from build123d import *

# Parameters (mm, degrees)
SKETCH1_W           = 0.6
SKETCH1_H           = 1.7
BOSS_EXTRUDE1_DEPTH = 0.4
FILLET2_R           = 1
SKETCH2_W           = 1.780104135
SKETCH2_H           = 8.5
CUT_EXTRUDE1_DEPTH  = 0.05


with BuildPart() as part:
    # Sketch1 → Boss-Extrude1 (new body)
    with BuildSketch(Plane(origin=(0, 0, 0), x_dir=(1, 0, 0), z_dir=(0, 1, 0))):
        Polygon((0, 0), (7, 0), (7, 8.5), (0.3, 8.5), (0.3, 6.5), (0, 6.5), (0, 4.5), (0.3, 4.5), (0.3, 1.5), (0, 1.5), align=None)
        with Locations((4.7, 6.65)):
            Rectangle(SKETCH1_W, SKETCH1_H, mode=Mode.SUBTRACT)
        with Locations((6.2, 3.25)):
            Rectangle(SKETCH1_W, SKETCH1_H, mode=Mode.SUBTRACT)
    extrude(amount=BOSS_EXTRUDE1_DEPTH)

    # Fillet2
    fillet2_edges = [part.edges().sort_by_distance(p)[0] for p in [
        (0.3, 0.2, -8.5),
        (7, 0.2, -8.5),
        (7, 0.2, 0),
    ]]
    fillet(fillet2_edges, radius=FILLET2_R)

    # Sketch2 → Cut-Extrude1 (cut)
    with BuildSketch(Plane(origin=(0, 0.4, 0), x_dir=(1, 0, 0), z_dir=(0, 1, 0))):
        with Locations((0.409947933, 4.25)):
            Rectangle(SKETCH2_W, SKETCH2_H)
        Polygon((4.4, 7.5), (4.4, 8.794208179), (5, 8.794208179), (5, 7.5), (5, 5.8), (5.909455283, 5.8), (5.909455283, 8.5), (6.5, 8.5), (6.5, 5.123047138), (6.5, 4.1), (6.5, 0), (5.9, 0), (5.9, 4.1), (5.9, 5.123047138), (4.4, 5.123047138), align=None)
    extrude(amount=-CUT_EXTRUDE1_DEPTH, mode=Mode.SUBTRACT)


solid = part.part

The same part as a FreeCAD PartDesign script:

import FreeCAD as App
import Part
import Sketcher

V = App.Vector
Q = App.Units.Quantity


def edges_at(feature, points):
    """Names of the edges that pass closest to the given points."""
    edges = feature.Shape.Edges
    near = lambda p: min(range(len(edges)), key=lambda i: edges[i].distToShape(Part.Vertex(*p))[0])
    return sorted({f"Edge{near(p) + 1}" for p in points})


def add_polygon(sketch, points):
    """Adds a closed chain of lines whose ends are joined by coincident constraints."""
    first, n = sketch.GeometryCount, len(points)
    for a, b in zip(points, points[1:] + points[:1]):
        sketch.addGeometry(Part.LineSegment(App.Vector(*a, 0), App.Vector(*b, 0)), False)
    for i in range(n):
        sketch.addConstraint(Sketcher.Constraint("Coincident", first + i, 2, first + (i + 1) % n, 1))

doc = App.newDocument("Part")
body = doc.addObject("PartDesign::Body", "Body")

sketch1 = doc.addObject("Sketcher::SketchObject", "Sketch")
body.addObject(sketch1)
sketch1.AttachmentSupport = (doc.XZ_Plane, [""])
sketch1.MapMode = "FlatFace"
add_polygon(sketch1, [(0, 0), (7, 0), (7, -8.5), (0.3, -8.5), (0.3, -6.5), (0, -6.5), (0, -4.5), (0.3, -4.5), (0.3, -1.5), (0, -1.5)])
add_polygon(sketch1, [(6.5, -2.4), (5.9, -2.4), (5.9, -4.1), (6.5, -4.1)])
add_polygon(sketch1, [(5, -5.8), (4.4, -5.8), (4.4, -7.5), (5, -7.5)])
sketch1.addConstraint(Sketcher.Constraint("Horizontal", 0))
sketch1.addConstraint(Sketcher.Constraint("Vertical", 1))
sketch1.addConstraint(Sketcher.Constraint("Horizontal", 2))
sketch1.addConstraint(Sketcher.Constraint("Vertical", 3))
sketch1.addConstraint(Sketcher.Constraint("Horizontal", 4))
sketch1.addConstraint(Sketcher.Constraint("Vertical", 5))
sketch1.addConstraint(Sketcher.Constraint("Horizontal", 6))
sketch1.addConstraint(Sketcher.Constraint("Vertical", 7))
sketch1.addConstraint(Sketcher.Constraint("Horizontal", 8))
sketch1.addConstraint(Sketcher.Constraint("Vertical", 9))
sketch1.addConstraint(Sketcher.Constraint("Horizontal", 10))
sketch1.addConstraint(Sketcher.Constraint("Vertical", 11))
sketch1.addConstraint(Sketcher.Constraint("Horizontal", 12))
sketch1.addConstraint(Sketcher.Constraint("Vertical", 13))
sketch1.addConstraint(Sketcher.Constraint("Horizontal", 14))
sketch1.addConstraint(Sketcher.Constraint("Vertical", 15))
sketch1.addConstraint(Sketcher.Constraint("Horizontal", 16))
sketch1.addConstraint(Sketcher.Constraint("Vertical", 17))
sketch1.addConstraint(Sketcher.Constraint("Coincident", 9, 2, -1, 1))
sketch1.addConstraint(Sketcher.Constraint("PointOnObject", 4, 2, -2))
sketch1.addConstraint(Sketcher.Constraint("Vertical", 3, 2, 6, 2))
sketch1.addConstraint(Sketcher.Constraint("Equal", 12, 14))
sketch1.addConstraint(Sketcher.Constraint("Equal", 3, 5))
sketch1.addConstraint(Sketcher.Constraint("Equal", 13, 15))
sketch1.addConstraint(Sketcher.Constraint("DistanceX", 0, 1, 0, 2, Q("7 mm")))
sketch1.addConstraint(Sketcher.Constraint("DistanceY", 3, 1, 3, 2, Q("2 mm")))
sketch1.addConstraint(Sketcher.Constraint("DistanceY", 7, 1, 7, 2, Q("3 mm")))
sketch1.addConstraint(Sketcher.Constraint("DistanceX", 2, 2, 2, 1, Q("6.7 mm")))
sketch1.addConstraint(Sketcher.Constraint("DistanceX", 10, 2, 10, 1, Q("0.6 mm")))
sketch1.addConstraint(Sketcher.Constraint("DistanceY", 1, 2, 1, 1, Q("8.5 mm")))
sketch1.addConstraint(Sketcher.Constraint("DistanceY", 11, 2, 11, 1, Q("1.7 mm")))
sketch1.addConstraint(Sketcher.Constraint("DistanceX", -1, 1, 16, 2, Q("5 mm")))
sketch1.addConstraint(Sketcher.Constraint("DistanceY", 1, 2, 15, 2, Q("1 mm")))
sketch1.addConstraint(Sketcher.Constraint("DistanceX", -1, 1, 10, 2, Q("5.9 mm")))
sketch1.addConstraint(Sketcher.Constraint("DistanceY", 10, 2, -1, 1, Q("2.4 mm")))
pad1 = doc.addObject("PartDesign::Pad", "Pad")
body.addObject(pad1)
pad1.Profile = sketch1
pad1.Length = 0.4
pad1.Reversed = True
doc.recompute()

fillet = doc.addObject("PartDesign::Fillet", "Fillet")
body.addObject(fillet)
fillet.Base = (pad1, edges_at(pad1, [(0.3, 0.2, -8.5), (7, 0.2, -8.5), (7, 0.2, 0)]))
fillet.Radius = 1

sketch2 = doc.addObject("Sketcher::SketchObject", "Sketch001")
body.addObject(sketch2)
sketch2.AttachmentSupport = (doc.XZ_Plane, [""])
sketch2.MapMode = "FlatFace"
sketch2.AttachmentOffset = App.Placement(V(0, 0, -0.4), App.Rotation())
add_polygon(sketch2, [(-0.5, -8.5), (-0.5, 0), (1.3, 0), (1.3, -8.5)])
add_polygon(sketch2, [(4.4, -8.8), (4.4, -5.1), (5.9, -5.1), (5.9, 0), (6.5, 0), (6.5, -8.5), (5.9, -8.5), (5.9, -5.8), (5, -5.8), (5, -8.8)])
sketch2.addConstraint(Sketcher.Constraint("Vertical", 0))
sketch2.addConstraint(Sketcher.Constraint("Horizontal", 1))
sketch2.addConstraint(Sketcher.Constraint("Vertical", 2))
sketch2.addConstraint(Sketcher.Constraint("Horizontal", 3))
sketch2.addConstraint(Sketcher.Constraint("Vertical", 4))
sketch2.addConstraint(Sketcher.Constraint("Horizontal", 5))
sketch2.addConstraint(Sketcher.Constraint("Vertical", 6))
sketch2.addConstraint(Sketcher.Constraint("Horizontal", 7))
sketch2.addConstraint(Sketcher.Constraint("Vertical", 8))
sketch2.addConstraint(Sketcher.Constraint("Horizontal", 9))
sketch2.addConstraint(Sketcher.Constraint("Vertical", 10))
sketch2.addConstraint(Sketcher.Constraint("Horizontal", 11))
sketch2.addConstraint(Sketcher.Constraint("Vertical", 12))
sketch2.addConstraint(Sketcher.Constraint("Horizontal", 13))
sketch2.addConstraint(Sketcher.Constraint("PointOnObject", 0, 2, -1))
sketch2.addConstraint(Sketcher.Constraint("PointOnObject", 6, 2, -1))
sketch2.addConstraint(Sketcher.Constraint("Horizontal", 3, 2, 8, 2))
sketch2.addConstraint(Sketcher.Constraint("Equal", 7, 13))
sketch2.addConstraint(Sketcher.Constraint("DistanceX", 5, 1, 5, 2, Q("1.5 mm")))
sketch2.addConstraint(Sketcher.Constraint("DistanceX", 7, 1, 7, 2, Q("0.6 mm")))
sketch2.addConstraint(Sketcher.Constraint("DistanceY", 0, 1, 0, 2, Q("8.5 mm")))
sketch2.addConstraint(Sketcher.Constraint("DistanceY", 10, 1, 10, 2, Q("2.7 mm")))
sketch2.addConstraint(Sketcher.Constraint("DistanceX", -1, 1, 11, 2, Q("5 mm")))
sketch2.addConstraint(Sketcher.Constraint("DistanceX", -1, 1, 1, 2, Q("1.3 mm")))
sketch2.addConstraint(Sketcher.Constraint("DistanceY", 4, 1, 4, 2, Q("3.671161 mm")))
sketch2.addConstraint(Sketcher.Constraint("DistanceY", 12, 2, 12, 1, Q("2.994208 mm")))
sketch2.addConstraint(Sketcher.Constraint("DistanceX", 1, 1, 1, 2, Q("1.780104 mm")))
sketch2.addConstraint(Sketcher.Constraint("DistanceX", 9, 2, 9, 1, Q("0.590545 mm")))
pocket1 = doc.addObject("PartDesign::Pocket", "Pocket")
body.addObject(pocket1)
pocket1.Profile = sketch2
pocket1.Length = 0.05
pocket1.Reversed = True

doc.recompute()
